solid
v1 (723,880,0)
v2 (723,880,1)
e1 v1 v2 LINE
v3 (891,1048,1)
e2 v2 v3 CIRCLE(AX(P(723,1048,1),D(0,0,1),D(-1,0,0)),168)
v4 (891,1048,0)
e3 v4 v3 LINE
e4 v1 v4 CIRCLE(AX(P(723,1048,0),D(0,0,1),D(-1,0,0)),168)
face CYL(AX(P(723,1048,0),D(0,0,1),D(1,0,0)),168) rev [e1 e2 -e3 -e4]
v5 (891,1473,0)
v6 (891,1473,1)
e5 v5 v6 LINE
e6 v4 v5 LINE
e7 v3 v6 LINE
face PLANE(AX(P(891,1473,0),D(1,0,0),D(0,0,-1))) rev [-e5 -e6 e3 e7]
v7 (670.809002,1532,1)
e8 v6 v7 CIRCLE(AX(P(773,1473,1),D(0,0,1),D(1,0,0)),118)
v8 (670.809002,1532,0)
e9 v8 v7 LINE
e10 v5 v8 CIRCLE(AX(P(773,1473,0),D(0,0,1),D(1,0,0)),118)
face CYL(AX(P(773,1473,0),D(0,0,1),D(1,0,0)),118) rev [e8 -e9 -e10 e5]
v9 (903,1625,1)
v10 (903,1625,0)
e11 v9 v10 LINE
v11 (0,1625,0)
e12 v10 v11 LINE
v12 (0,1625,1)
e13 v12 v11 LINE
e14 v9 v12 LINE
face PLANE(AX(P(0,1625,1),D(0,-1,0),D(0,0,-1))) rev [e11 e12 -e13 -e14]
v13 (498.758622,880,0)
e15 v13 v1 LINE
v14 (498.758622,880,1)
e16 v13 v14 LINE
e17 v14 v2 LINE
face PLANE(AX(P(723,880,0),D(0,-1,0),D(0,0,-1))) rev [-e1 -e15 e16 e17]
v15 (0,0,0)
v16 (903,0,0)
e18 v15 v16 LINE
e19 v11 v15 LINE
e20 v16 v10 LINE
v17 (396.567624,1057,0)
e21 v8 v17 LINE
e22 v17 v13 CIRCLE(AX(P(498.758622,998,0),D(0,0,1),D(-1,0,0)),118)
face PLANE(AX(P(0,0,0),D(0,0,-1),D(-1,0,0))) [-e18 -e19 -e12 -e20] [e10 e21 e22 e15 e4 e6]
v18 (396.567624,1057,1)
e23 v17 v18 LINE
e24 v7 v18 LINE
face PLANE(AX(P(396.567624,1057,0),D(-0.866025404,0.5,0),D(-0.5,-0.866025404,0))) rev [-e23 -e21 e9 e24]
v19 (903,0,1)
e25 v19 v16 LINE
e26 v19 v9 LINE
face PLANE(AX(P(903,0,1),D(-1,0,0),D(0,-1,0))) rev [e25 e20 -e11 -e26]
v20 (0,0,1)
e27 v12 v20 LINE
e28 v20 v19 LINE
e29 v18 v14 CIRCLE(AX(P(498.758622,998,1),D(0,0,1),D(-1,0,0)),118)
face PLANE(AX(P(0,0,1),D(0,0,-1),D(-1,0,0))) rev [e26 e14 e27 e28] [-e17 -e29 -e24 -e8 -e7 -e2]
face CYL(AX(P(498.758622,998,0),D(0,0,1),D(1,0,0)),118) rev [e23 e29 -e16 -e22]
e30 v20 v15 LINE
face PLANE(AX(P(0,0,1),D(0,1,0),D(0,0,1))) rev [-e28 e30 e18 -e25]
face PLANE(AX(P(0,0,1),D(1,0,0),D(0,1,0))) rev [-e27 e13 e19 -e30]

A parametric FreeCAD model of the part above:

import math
import FreeCAD as App
import Part
import Sketcher

V = App.Vector
Q = App.Units.Quantity

doc = App.newDocument("Part")
body = doc.addObject("PartDesign::Body", "Body")

# Sketch on XY plane
sketch1 = doc.addObject("Sketcher::SketchObject", "Sketch")
body.addObject(sketch1)
sketch1.AttachmentSupport = (doc.XY_Plane, [""])
sketch1.MapMode = "FlatFace"
sketch1.addGeometry(Part.LineSegment(V(0, 1625, 0), V(0, 0, 0)), False)
sketch1.addGeometry(Part.LineSegment(V(0, 0, 0), V(903, 0, 0)), False)
sketch1.addGeometry(Part.LineSegment(V(903, 0, 0), V(903, 1625, 0)), False)
sketch1.addGeometry(Part.LineSegment(V(903, 1625, 0), V(0, 1625, 0)), False)
sketch1.addConstraint(Sketcher.Constraint("Coincident", 0, 2, 1, 1))
sketch1.addConstraint(Sketcher.Constraint("Coincident", 1, 2, 2, 1))
sketch1.addConstraint(Sketcher.Constraint("Coincident", 2, 2, 3, 1))
sketch1.addConstraint(Sketcher.Constraint("Coincident", 3, 2, 0, 1))
sketch1.addConstraint(Sketcher.Constraint("Vertical", 0))
sketch1.addConstraint(Sketcher.Constraint("Horizontal", 1))
sketch1.addConstraint(Sketcher.Constraint("Vertical", 2))
sketch1.addConstraint(Sketcher.Constraint("Horizontal", 3))
sketch1.addConstraint(Sketcher.Constraint("Coincident", 0, 2, -1, 1))
sketch1.addConstraint(Sketcher.Constraint("DistanceX", 1, 1, 1, 2, 903.0))
sketch1.addConstraint(Sketcher.Constraint("DistanceY", 0, 2, 0, 1, 1625.0))
pad1 = doc.addObject("PartDesign::Pad", "Pad")
body.addObject(pad1)
pad1.Profile = sketch1
pad1.Length = 1

# Sketch on XY plane
sketch2 = doc.addObject("Sketcher::SketchObject", "Sketch001")
body.addObject(sketch2)
sketch2.AttachmentSupport = (doc.XY_Plane, [""])
sketch2.MapMode = "FlatFace"
sketch2.AttachmentOffset = App.Placement(V(0, 0, 1), App.Rotation())
sketch2.addGeometry(Part.LineSegment(V(891, 1048, 0), V(891, 1473, 0)), False)
sketch2.addGeometry(Part.ArcOfCircle(Part.Circle(V(773, 1473, 0), V(0, 0, 1), 118), math.radians(0), math.radians(150)), False)
sketch2.addGeometry(Part.LineSegment(V(670.809002, 1532, 0), V(396.567624, 1057, 0)), False)
sketch2.addGeometry(Part.ArcOfCircle(Part.Circle(V(498.758622, 998, 0), V(0, 0, 1), 118), math.radians(150), math.radians(270)), False)
sketch2.addGeometry(Part.LineSegment(V(498.758622, 880, 0), V(723, 880, 0)), False)
sketch2.addGeometry(Part.ArcOfCircle(Part.Circle(V(723, 1048, 0), V(0, 0, 1), 168), math.radians(-90), math.radians(0)), False)
sketch2.addConstraint(Sketcher.Constraint("Tangent", 0, 2, 1, 1))
sketch2.addConstraint(Sketcher.Constraint("Tangent", 1, 2, 2, 1))
sketch2.addConstraint(Sketcher.Constraint("Tangent", 2, 2, 3, 1))
sketch2.addConstraint(Sketcher.Constraint("Tangent", 3, 2, 4, 1))
sketch2.addConstraint(Sketcher.Constraint("Tangent", 4, 2, 5, 1))
sketch2.addConstraint(Sketcher.Constraint("Tangent", 5, 2, 0, 1))
sketch2.addConstraint(Sketcher.Constraint("Vertical", 0))
sketch2.addConstraint(Sketcher.Constraint("Horizontal", 4))
sketch2.addConstraint(Sketcher.Constraint("Equal", 1, 3))
sketch2.addConstraint(Sketcher.Constraint("Radius", 1, 118.0))
sketch2.addConstraint(Sketcher.Constraint("Radius", 5, 168.0))
sketch2.addConstraint(Sketcher.Constraint("DistanceY", 0, 1, 0, 2, 425.0))
sketch2.addConstraint(Sketcher.Constraint("Angle", 2, Q("-120 deg")))
sketch2.addConstraint(Sketcher.Constraint("DistanceX", -1, 1, 1, 3, 773.0))
sketch2.addConstraint(Sketcher.Constraint("DistanceY", -1, 1, 1, 3, 1473.0))
pocket1 = doc.addObject("PartDesign::Pocket", "Pocket")
body.addObject(pocket1)
pocket1.Profile = sketch2
pocket1.Type = "ThroughAll"

doc.recompute()
